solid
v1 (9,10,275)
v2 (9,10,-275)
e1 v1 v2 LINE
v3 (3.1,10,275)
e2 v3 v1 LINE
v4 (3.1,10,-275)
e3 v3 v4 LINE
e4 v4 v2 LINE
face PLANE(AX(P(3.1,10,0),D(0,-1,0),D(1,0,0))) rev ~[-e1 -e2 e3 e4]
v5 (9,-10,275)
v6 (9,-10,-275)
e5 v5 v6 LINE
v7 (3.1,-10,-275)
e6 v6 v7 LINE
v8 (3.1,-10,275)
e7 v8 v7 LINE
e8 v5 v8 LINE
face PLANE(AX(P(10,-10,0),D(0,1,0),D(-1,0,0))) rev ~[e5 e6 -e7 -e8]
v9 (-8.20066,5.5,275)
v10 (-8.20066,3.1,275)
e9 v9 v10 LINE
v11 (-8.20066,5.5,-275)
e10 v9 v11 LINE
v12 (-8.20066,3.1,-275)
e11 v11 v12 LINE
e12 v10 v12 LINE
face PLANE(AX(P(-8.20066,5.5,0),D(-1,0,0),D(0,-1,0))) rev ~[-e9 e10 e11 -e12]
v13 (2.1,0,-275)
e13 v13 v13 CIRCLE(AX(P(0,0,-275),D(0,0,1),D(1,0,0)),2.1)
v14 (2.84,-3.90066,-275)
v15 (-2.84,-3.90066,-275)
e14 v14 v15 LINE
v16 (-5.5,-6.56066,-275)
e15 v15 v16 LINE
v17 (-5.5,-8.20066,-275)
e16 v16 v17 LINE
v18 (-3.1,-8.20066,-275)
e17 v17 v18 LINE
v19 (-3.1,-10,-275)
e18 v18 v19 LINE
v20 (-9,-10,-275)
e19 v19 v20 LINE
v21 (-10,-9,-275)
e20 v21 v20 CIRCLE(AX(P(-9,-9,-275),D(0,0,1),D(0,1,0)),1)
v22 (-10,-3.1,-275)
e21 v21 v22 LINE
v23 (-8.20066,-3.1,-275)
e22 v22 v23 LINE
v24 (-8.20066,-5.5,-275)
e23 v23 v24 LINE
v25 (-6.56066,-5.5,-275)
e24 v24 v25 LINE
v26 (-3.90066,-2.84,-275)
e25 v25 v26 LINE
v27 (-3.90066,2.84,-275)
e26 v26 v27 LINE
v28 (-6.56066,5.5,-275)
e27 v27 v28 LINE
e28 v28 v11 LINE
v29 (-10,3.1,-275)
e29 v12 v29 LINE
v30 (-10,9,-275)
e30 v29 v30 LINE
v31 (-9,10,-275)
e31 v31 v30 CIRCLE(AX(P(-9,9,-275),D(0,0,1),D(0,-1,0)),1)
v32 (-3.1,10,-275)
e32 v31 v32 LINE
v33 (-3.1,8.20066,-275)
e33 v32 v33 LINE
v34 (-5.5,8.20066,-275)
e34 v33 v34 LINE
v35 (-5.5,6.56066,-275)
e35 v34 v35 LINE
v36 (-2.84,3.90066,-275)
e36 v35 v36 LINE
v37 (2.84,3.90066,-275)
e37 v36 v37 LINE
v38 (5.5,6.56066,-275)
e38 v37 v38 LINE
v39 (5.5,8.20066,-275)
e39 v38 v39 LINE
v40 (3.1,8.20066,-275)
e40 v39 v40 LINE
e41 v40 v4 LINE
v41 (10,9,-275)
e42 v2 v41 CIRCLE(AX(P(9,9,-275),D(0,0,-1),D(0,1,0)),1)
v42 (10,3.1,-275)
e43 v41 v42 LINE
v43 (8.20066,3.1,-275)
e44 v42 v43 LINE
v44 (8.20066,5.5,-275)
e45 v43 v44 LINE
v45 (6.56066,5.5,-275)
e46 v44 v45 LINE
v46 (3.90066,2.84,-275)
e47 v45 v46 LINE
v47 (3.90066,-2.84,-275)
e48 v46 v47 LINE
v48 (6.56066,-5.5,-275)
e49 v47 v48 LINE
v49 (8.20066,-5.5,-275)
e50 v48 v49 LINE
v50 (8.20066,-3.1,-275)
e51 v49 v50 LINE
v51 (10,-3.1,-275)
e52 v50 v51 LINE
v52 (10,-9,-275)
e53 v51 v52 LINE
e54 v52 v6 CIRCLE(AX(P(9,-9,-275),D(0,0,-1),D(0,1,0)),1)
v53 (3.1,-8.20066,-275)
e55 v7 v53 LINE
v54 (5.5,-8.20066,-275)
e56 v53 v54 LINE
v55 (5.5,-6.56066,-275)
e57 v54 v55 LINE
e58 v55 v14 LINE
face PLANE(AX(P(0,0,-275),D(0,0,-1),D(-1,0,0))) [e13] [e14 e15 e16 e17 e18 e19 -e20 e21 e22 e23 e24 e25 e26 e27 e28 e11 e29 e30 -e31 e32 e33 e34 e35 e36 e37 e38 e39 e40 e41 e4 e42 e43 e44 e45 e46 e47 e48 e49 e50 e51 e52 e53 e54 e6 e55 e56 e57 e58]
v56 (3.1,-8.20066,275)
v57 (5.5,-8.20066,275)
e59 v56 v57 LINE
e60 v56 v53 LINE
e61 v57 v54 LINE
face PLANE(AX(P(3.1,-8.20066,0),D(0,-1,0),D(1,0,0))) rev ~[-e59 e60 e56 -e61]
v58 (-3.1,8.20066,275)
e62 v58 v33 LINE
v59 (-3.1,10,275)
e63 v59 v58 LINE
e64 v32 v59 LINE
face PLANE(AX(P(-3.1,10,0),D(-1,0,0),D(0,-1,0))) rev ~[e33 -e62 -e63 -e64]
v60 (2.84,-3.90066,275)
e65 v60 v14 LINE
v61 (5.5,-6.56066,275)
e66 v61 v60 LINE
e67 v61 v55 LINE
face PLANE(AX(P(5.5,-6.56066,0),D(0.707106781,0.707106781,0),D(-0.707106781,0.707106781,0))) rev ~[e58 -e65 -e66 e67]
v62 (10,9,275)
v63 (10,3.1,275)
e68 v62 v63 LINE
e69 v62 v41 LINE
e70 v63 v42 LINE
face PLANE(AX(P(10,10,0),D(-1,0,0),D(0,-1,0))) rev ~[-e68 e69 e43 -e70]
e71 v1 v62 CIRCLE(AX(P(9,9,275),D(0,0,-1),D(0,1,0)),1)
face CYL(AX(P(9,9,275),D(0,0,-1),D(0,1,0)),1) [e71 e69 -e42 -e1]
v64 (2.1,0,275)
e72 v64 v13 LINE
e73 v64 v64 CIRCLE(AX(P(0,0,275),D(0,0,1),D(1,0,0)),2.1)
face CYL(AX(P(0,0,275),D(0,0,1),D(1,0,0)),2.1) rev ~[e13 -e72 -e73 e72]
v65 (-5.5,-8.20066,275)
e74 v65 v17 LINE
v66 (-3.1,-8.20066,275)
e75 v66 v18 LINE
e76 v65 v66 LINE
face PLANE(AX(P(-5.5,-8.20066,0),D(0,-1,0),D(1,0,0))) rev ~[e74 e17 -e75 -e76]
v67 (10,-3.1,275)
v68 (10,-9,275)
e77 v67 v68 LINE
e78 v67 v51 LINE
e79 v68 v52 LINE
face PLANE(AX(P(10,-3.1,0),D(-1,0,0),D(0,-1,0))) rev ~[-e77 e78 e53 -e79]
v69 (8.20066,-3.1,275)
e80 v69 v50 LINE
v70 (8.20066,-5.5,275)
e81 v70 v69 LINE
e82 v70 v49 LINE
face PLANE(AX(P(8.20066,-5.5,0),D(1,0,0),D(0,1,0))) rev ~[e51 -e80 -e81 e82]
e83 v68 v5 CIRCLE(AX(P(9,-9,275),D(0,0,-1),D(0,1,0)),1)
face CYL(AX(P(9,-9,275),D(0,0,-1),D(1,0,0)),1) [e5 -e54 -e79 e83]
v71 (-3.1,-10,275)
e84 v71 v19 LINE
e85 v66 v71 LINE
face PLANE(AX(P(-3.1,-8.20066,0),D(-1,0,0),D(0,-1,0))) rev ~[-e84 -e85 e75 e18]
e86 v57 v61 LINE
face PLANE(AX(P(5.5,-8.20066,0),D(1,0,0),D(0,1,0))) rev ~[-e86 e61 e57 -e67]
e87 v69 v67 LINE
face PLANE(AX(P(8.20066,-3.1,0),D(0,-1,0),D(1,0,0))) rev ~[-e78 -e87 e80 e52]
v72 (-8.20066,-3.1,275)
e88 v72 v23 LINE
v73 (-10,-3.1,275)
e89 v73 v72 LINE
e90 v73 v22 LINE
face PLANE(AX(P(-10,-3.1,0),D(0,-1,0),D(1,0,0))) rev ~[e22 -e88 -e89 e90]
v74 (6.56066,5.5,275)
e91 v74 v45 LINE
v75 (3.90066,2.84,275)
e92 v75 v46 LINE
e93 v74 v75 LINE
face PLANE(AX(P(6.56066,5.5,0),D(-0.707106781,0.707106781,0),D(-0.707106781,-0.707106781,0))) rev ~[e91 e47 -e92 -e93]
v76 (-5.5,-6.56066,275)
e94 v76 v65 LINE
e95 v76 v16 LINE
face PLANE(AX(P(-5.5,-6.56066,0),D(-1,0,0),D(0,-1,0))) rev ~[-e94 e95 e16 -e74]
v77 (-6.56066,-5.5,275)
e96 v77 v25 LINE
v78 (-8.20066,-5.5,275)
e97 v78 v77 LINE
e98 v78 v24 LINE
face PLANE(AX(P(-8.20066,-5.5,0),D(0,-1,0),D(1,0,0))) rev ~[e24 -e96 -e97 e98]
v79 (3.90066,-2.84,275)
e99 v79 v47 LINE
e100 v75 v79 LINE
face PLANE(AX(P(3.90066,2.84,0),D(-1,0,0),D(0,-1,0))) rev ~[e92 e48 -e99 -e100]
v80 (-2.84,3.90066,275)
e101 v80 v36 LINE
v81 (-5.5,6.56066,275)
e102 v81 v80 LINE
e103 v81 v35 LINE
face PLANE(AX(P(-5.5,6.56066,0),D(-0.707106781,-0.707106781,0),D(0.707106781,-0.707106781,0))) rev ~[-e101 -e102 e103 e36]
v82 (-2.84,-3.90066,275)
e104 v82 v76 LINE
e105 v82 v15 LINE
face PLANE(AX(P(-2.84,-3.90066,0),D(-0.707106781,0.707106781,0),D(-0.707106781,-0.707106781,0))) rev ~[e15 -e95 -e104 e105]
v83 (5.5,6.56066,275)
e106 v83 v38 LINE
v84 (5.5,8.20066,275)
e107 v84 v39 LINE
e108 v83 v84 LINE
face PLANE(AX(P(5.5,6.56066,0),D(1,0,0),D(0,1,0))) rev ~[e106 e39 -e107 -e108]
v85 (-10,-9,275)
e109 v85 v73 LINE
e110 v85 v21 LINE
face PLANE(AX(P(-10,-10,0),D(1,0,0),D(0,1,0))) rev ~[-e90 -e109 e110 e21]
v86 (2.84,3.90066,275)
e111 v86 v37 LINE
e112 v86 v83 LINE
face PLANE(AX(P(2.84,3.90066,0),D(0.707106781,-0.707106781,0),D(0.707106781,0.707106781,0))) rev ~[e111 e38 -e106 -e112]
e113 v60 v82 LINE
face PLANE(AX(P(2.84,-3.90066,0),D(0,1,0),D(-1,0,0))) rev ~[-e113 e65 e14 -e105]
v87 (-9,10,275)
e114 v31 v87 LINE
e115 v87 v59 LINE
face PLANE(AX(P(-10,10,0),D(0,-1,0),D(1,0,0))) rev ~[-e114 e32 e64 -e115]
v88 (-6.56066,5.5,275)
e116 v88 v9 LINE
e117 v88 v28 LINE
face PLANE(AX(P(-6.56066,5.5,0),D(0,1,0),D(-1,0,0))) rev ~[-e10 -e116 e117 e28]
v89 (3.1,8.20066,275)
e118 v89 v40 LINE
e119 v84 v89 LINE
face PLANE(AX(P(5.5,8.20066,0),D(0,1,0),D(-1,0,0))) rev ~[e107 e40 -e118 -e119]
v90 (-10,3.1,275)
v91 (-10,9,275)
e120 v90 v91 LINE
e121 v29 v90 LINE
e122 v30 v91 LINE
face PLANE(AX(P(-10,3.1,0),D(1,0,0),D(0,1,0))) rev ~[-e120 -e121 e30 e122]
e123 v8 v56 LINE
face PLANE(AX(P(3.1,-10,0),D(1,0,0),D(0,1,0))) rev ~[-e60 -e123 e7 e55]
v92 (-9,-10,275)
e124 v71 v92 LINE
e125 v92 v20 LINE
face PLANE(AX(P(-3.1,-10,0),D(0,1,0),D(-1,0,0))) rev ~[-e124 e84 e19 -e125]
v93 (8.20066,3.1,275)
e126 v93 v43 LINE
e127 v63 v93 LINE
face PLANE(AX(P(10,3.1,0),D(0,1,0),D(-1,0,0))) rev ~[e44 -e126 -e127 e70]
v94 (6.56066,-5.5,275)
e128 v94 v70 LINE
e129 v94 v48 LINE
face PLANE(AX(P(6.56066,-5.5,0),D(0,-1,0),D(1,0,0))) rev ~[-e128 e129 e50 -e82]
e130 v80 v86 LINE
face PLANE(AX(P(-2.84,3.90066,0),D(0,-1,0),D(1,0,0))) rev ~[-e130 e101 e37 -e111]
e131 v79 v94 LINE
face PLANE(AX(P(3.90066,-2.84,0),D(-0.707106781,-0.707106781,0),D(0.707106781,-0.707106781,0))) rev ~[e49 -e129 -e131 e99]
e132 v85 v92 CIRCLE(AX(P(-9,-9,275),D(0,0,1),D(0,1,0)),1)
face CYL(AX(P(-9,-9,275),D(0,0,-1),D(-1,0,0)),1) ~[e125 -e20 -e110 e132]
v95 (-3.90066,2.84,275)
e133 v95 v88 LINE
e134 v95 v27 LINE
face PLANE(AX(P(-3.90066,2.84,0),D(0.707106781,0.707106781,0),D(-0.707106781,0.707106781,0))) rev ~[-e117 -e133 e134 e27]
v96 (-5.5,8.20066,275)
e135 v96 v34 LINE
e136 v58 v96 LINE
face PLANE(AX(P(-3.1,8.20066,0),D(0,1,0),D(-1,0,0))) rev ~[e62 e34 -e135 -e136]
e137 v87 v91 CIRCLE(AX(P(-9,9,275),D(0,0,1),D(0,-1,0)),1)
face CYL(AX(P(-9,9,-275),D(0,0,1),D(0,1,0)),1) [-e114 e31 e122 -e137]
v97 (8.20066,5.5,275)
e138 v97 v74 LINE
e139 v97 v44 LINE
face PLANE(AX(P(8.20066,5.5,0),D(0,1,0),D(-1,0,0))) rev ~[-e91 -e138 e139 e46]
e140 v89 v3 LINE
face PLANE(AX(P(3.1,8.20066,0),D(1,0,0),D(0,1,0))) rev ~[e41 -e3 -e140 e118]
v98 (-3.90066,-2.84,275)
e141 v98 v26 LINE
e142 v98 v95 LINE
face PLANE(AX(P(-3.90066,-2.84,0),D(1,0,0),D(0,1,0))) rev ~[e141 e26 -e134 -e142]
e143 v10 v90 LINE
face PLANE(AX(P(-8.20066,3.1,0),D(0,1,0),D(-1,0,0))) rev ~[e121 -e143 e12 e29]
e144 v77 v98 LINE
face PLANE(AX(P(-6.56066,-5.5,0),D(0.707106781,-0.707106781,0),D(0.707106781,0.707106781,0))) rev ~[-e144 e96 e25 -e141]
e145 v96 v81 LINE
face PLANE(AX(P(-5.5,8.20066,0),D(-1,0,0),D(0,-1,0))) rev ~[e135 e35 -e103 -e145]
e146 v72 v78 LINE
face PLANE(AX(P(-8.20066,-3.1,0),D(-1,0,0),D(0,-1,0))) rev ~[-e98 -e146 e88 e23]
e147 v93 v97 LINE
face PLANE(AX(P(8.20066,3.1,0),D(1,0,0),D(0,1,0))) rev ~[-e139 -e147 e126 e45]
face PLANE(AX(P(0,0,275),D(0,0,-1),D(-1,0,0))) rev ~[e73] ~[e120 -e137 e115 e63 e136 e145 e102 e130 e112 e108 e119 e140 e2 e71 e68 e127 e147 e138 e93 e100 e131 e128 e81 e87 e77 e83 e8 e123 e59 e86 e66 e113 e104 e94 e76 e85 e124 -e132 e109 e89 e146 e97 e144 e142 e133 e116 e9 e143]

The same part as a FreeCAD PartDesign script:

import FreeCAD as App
import Part
import Sketcher
from FreeCAD import Vector
Q = App.Units.Quantity


def edges_at(feature, points):
    """Names of the edges that pass closest to the given points."""
    edges = feature.Shape.Edges
    near = lambda p: min(range(len(edges)), key=lambda i: edges[i].distToShape(Part.Vertex(*p))[0])
    return sorted({f"Edge{near(p) + 1}" for p in points})

doc = App.newDocument("Part")
body = doc.addObject("PartDesign::Body", "Body")

# Sketch on XY plane
sketch1 = doc.addObject("Sketcher::SketchObject", "Sketch")
body.addObject(sketch1)
sketch1.AttachmentSupport = (doc.XY_Plane, [""])
sketch1.MapMode = "FlatFace"
sketch1.addGeometry(Part.LineSegment(Vector(-3.1, 8.2, 0), Vector(-3.1, 10, 0)), False)
sketch1.addGeometry(Part.LineSegment(Vector(-3.1, 10, 0), Vector(-10, 10, 0)), False)
sketch1.addGeometry(Part.LineSegment(Vector(-10, 10, 0), Vector(-10, 3.1, 0)), False)
sketch1.addGeometry(Part.LineSegment(Vector(-10, 3.1, 0), Vector(-8.2, 3.1, 0)), False)
sketch1.addGeometry(Part.LineSegment(Vector(-8.2, 3.1, 0), Vector(-8.2, 5.5, 0)), False)
sketch1.addGeometry(Part.LineSegment(Vector(-8.2, 5.5, 0), Vector(-6.6, 5.5, 0)), False)
sketch1.addGeometry(Part.LineSegment(Vector(-6.6, 5.5, 0), Vector(-3.9, 2.8, 0)), False)
sketch1.addGeometry(Part.LineSegment(Vector(-3.9, 2.8, 0), Vector(-3.9, -2.8, 0)), False)
sketch1.addGeometry(Part.LineSegment(Vector(-3.9, -2.8, 0), Vector(-6.6, -5.5, 0)), False)
sketch1.addGeometry(Part.LineSegment(Vector(-6.6, -5.5, 0), Vector(-8.2, -5.5, 0)), False)
sketch1.addGeometry(Part.LineSegment(Vector(-8.2, -5.5, 0), Vector(-8.2, -3.1, 0)), False)
sketch1.addGeometry(Part.LineSegment(Vector(-8.2, -3.1, 0), Vector(-10, -3.1, 0)), False)
sketch1.addGeometry(Part.LineSegment(Vector(-10, -3.1, 0), Vector(-10, -10, 0)), False)
sketch1.addGeometry(Part.LineSegment(Vector(-10, -10, 0), Vector(-3.1, -10, 0)), False)
sketch1.addGeometry(Part.LineSegment(Vector(-3.1, -10, 0), Vector(-3.1, -8.2, 0)), False)
sketch1.addGeometry(Part.LineSegment(Vector(-3.1, -8.2, 0), Vector(-5.5, -8.2, 0)), False)
sketch1.addGeometry(Part.LineSegment(Vector(-5.5, -8.2, 0), Vector(-5.5, -6.6, 0)), False)
sketch1.addGeometry(Part.LineSegment(Vector(-5.5, -6.6, 0), Vector(-2.8, -3.9, 0)), False)
sketch1.addGeometry(Part.LineSegment(Vector(-2.8, -3.9, 0), Vector(2.8, -3.9, 0)), False)
sketch1.addGeometry(Part.LineSegment(Vector(2.8, -3.9, 0), Vector(5.5, -6.6, 0)), False)
sketch1.addGeometry(Part.LineSegment(Vector(5.5, -6.6, 0), Vector(5.5, -8.2, 0)), False)
sketch1.addGeometry(Part.LineSegment(Vector(5.5, -8.2, 0), Vector(3.1, -8.2, 0)), False)
sketch1.addGeometry(Part.LineSegment(Vector(3.1, -8.2, 0), Vector(3.1, -10, 0)), False)
sketch1.addGeometry(Part.LineSegment(Vector(3.1, -10, 0), Vector(10, -10, 0)), False)
sketch1.addGeometry(Part.LineSegment(Vector(10, -10, 0), Vector(10, -3.1, 0)), False)
sketch1.addGeometry(Part.LineSegment(Vector(10, -3.1, 0), Vector(8.2, -3.1, 0)), False)
sketch1.addGeometry(Part.LineSegment(Vector(8.2, -3.1, 0), Vector(8.2, -5.5, 0)), False)
sketch1.addGeometry(Part.LineSegment(Vector(8.2, -5.5, 0), Vector(6.6, -5.5, 0)), False)
sketch1.addGeometry(Part.LineSegment(Vector(6.6, -5.5, 0), Vector(3.9, -2.8, 0)), False)
sketch1.addGeometry(Part.LineSegment(Vector(3.9, -2.8, 0), Vector(3.9, 2.8, 0)), False)
sketch1.addGeometry(Part.LineSegment(Vector(3.9, 2.8, 0), Vector(6.6, 5.5, 0)), False)
sketch1.addGeometry(Part.LineSegment(Vector(6.6, 5.5, 0), Vector(8.2, 5.5, 0)), False)
sketch1.addGeometry(Part.LineSegment(Vector(8.2, 5.5, 0), Vector(8.2, 3.1, 0)), False)
sketch1.addGeometry(Part.LineSegment(Vector(8.2, 3.1, 0), Vector(10, 3.1, 0)), False)
sketch1.addGeometry(Part.LineSegment(Vector(10, 3.1, 0), Vector(10, 10, 0)), False)
sketch1.addGeometry(Part.LineSegment(Vector(10, 10, 0), Vector(3.1, 10, 0)), False)
sketch1.addGeometry(Part.LineSegment(Vector(3.1, 10, 0), Vector(3.1, 8.2, 0)), False)
sketch1.addGeometry(Part.LineSegment(Vector(3.1, 8.2, 0), Vector(5.5, 8.2, 0)), False)
sketch1.addGeometry(Part.LineSegment(Vector(5.5, 8.2, 0), Vector(5.5, 6.6, 0)), False)
sketch1.addGeometry(Part.LineSegment(Vector(5.5, 6.6, 0), Vector(2.8, 3.9, 0)), False)
sketch1.addGeometry(Part.LineSegment(Vector(2.8, 3.9, 0), Vector(-2.8, 3.9, 0)), False)
sketch1.addGeometry(Part.LineSegment(Vector(-2.8, 3.9, 0), Vector(-5.5, 6.6, 0)), False)
sketch1.addGeometry(Part.LineSegment(Vector(-5.5, 6.6, 0), Vector(-5.5, 8.2, 0)), False)
sketch1.addGeometry(Part.LineSegment(Vector(-5.5, 8.2, 0), Vector(-3.1, 8.2, 0)), False)
sketch1.addConstraint(Sketcher.Constraint("Coincident", 0, 2, 1, 1))
sketch1.addConstraint(Sketcher.Constraint("Coincident", 1, 2, 2, 1))
sketch1.addConstraint(Sketcher.Constraint("Coincident", 2, 2, 3, 1))
sketch1.addConstraint(Sketcher.Constraint("Coincident", 3, 2, 4, 1))
sketch1.addConstraint(Sketcher.Constraint("Coincident", 4, 2, 5, 1))
sketch1.addConstraint(Sketcher.Constraint("Coincident", 5, 2, 6, 1))
sketch1.addConstraint(Sketcher.Constraint("Coincident", 6, 2, 7, 1))
sketch1.addConstraint(Sketcher.Constraint("Coincident", 7, 2, 8, 1))
sketch1.addConstraint(Sketcher.Constraint("Coincident", 8, 2, 9, 1))
sketch1.addConstraint(Sketcher.Constraint("Coincident", 9, 2, 10, 1))
sketch1.addConstraint(Sketcher.Constraint("Coincident", 10, 2, 11, 1))
sketch1.addConstraint(Sketcher.Constraint("Coincident", 11, 2, 12, 1))
sketch1.addConstraint(Sketcher.Constraint("Coincident", 12, 2, 13, 1))
sketch1.addConstraint(Sketcher.Constraint("Coincident", 13, 2, 14, 1))
sketch1.addConstraint(Sketcher.Constraint("Coincident", 14, 2, 15, 1))
sketch1.addConstraint(Sketcher.Constraint("Coincident", 15, 2, 16, 1))
sketch1.addConstraint(Sketcher.Constraint("Coincident", 16, 2, 17, 1))
sketch1.addConstraint(Sketcher.Constraint("Coincident", 17, 2, 18, 1))
sketch1.addConstraint(Sketcher.Constraint("Coincident", 18, 2, 19, 1))
sketch1.addConstraint(Sketcher.Constraint("Coincident", 19, 2, 20, 1))
sketch1.addConstraint(Sketcher.Constraint("Coincident", 20, 2, 21, 1))
sketch1.addConstraint(Sketcher.Constraint("Coincident", 21, 2, 22, 1))
sketch1.addConstraint(Sketcher.Constraint("Coincident", 22, 2, 23, 1))
sketch1.addConstraint(Sketcher.Constraint("Coincident", 23, 2, 24, 1))
sketch1.addConstraint(Sketcher.Constraint("Coincident", 24, 2, 25, 1))
sketch1.addConstraint(Sketcher.Constraint("Coincident", 25, 2, 26, 1))
sketch1.addConstraint(Sketcher.Constraint("Coincident", 26, 2, 27, 1))
sketch1.addConstraint(Sketcher.Constraint("Coincident", 27, 2, 28, 1))
sketch1.addConstraint(Sketcher.Constraint("Coincident", 28, 2, 29, 1))
sketch1.addConstraint(Sketcher.Constraint("Coincident", 29, 2, 30, 1))
sketch1.addConstraint(Sketcher.Constraint("Coincident", 30, 2, 31, 1))
sketch1.addConstraint(Sketcher.Constraint("Coincident", 31, 2, 32, 1))
sketch1.addConstraint(Sketcher.Constraint("Coincident", 32, 2, 33, 1))
sketch1.addConstraint(Sketcher.Constraint("Coincident", 33, 2, 34, 1))
sketch1.addConstraint(Sketcher.Constraint("Coincident", 34, 2, 35, 1))
sketch1.addConstraint(Sketcher.Constraint("Coincident", 35, 2, 36, 1))
sketch1.addConstraint(Sketcher.Constraint("Coincident", 36, 2, 37, 1))
sketch1.addConstraint(Sketcher.Constraint("Coincident", 37, 2, 38, 1))
sketch1.addConstraint(Sketcher.Constraint("Coincident", 38, 2, 39, 1))
sketch1.addConstraint(Sketcher.Constraint("Coincident", 39, 2, 40, 1))
sketch1.addConstraint(Sketcher.Constraint("Coincident", 40, 2, 41, 1))
sketch1.addConstraint(Sketcher.Constraint("Coincident", 41, 2, 42, 1))
sketch1.addConstraint(Sketcher.Constraint("Coincident", 42, 2, 43, 1))
sketch1.addConstraint(Sketcher.Constraint("Coincident", 43, 2, 0, 1))
sketch1.addConstraint(Sketcher.Constraint("Vertical", 0))
sketch1.addConstraint(Sketcher.Constraint("Horizontal", 1))
sketch1.addConstraint(Sketcher.Constraint("Vertical", 2))
sketch1.addConstraint(Sketcher.Constraint("Horizontal", 3))
sketch1.addConstraint(Sketcher.Constraint("Vertical", 4))
sketch1.addConstraint(Sketcher.Constraint("Horizontal", 5))
sketch1.addConstraint(Sketcher.Constraint("Vertical", 7))
sketch1.addConstraint(Sketcher.Constraint("Horizontal", 9))
sketch1.addConstraint(Sketcher.Constraint("Vertical", 10))
sketch1.addConstraint(Sketcher.Constraint("Horizontal", 11))
sketch1.addConstraint(Sketcher.Constraint("Vertical", 12))
sketch1.addConstraint(Sketcher.Constraint("Horizontal", 13))
sketch1.addConstraint(Sketcher.Constraint("Vertical", 14))
sketch1.addConstraint(Sketcher.Constraint("Horizontal", 15))
sketch1.addConstraint(Sketcher.Constraint("Vertical", 16))
sketch1.addConstraint(Sketcher.Constraint("Horizontal", 18))
sketch1.addConstraint(Sketcher.Constraint("Vertical", 20))
sketch1.addConstraint(Sketcher.Constraint("Horizontal", 21))
sketch1.addConstraint(Sketcher.Constraint("Vertical", 22))
sketch1.addConstraint(Sketcher.Constraint("Horizontal", 23))
sketch1.addConstraint(Sketcher.Constraint("Vertical", 24))
sketch1.addConstraint(Sketcher.Constraint("Horizontal", 25))
sketch1.addConstraint(Sketcher.Constraint("Vertical", 26))
sketch1.addConstraint(Sketcher.Constraint("Horizontal", 27))
sketch1.addConstraint(Sketcher.Constraint("Vertical", 29))
sketch1.addConstraint(Sketcher.Constraint("Horizontal", 31))
sketch1.addConstraint(Sketcher.Constraint("Vertical", 32))
sketch1.addConstraint(Sketcher.Constraint("Horizontal", 33))
sketch1.addConstraint(Sketcher.Constraint("Vertical", 34))
sketch1.addConstraint(Sketcher.Constraint("Horizontal", 35))
sketch1.addConstraint(Sketcher.Constraint("Vertical", 36))
sketch1.addConstraint(Sketcher.Constraint("Horizontal", 37))
sketch1.addConstraint(Sketcher.Constraint("Vertical", 38))
sketch1.addConstraint(Sketcher.Constraint("Horizontal", 40))
sketch1.addConstraint(Sketcher.Constraint("Vertical", 42))
sketch1.addConstraint(Sketcher.Constraint("Horizontal", 43))
sketch1.addConstraint(Sketcher.Constraint("Symmetric", 0, 2, 22, 2, -1, 1))
sketch1.addConstraint(Sketcher.Constraint("Symmetric", 2, 2, 24, 2, -1, 1))
sketch1.addConstraint(Sketcher.Constraint("Symmetric", 4, 2, 26, 2, -1, 1))
sketch1.addConstraint(Sketcher.Constraint("Symmetric", 6, 2, 28, 2, -1, 1))
sketch1.addConstraint(Sketcher.Constraint("Symmetric", 8, 2, 30, 2, -1, 1))
sketch1.addConstraint(Sketcher.Constraint("Symmetric", 10, 2, 32, 2, -1, 1))
sketch1.addConstraint(Sketcher.Constraint("Symmetric", 12, 2, 34, 2, -1, 1))
sketch1.addConstraint(Sketcher.Constraint("Symmetric", 14, 2, 36, 2, -1, 1))
sketch1.addConstraint(Sketcher.Constraint("Symmetric", 16, 2, 38, 2, -1, 1))
sketch1.addConstraint(Sketcher.Constraint("Symmetric", 17, 2, 39, 2, -1, 1))
sketch1.addConstraint(Sketcher.Constraint("Symmetric", 19, 2, 41, 2, -1, 1))
sketch1.addConstraint(Sketcher.Constraint("Symmetric", 16, 2, 19, 2, -2))
sketch1.addConstraint(Sketcher.Constraint("Symmetric", 14, 2, 21, 2, -2))
sketch1.addConstraint(Sketcher.Constraint("Symmetric", 12, 2, 23, 2, -2))
sketch1.addConstraint(Sketcher.Constraint("Symmetric", 10, 2, 25, 2, -2))
sketch1.addConstraint(Sketcher.Constraint("Symmetric", 8, 2, 27, 2, -2))
sketch1.addConstraint(Sketcher.Constraint("Perpendicular", 6, 8))
sketch1.addConstraint(Sketcher.Constraint("Parallel", 8, 17))
sketch1.addConstraint(Sketcher.Constraint("Perpendicular", 17, 19))
sketch1.addConstraint(Sketcher.Constraint("Parallel", 19, 28))
sketch1.addConstraint(Sketcher.Constraint("Perpendicular", 28, 30))
sketch1.addConstraint(Sketcher.Constraint("Perpendicular", 39, 41))
sketch1.addConstraint(Sketcher.Constraint("Horizontal", 7, 2, 28, 2))
sketch1.addConstraint(Sketcher.Constraint("Horizontal", 37, 2, 42, 2))
sketch1.addConstraint(Sketcher.Constraint("Equal", 33, 0))
sketch1.addConstraint(Sketcher.Constraint("Equal", 35, 2))
sketch1.addConstraint(Sketcher.Constraint("Equal", 43, 4))
sketch1.addConstraint(Sketcher.Constraint("Equal", 40, 7))
sketch1.addConstraint(Sketcher.Constraint("Equal", 31, 16))
sketch1.addConstraint(Sketcher.Constraint("Equal", 8, 17))
sketch1.addConstraint(Sketcher.Constraint("DistanceX", 1, 2, 1, 1, Q("6.9 mm")))
sketch1.addConstraint(Sketcher.Constraint("DistanceX", 15, 2, 15, 1, Q("2.4 mm")))
sketch1.addConstraint(Sketcher.Constraint("DistanceY", -1, 1, 0, 2, Q("10 mm")))
sketch1.addConstraint(Sketcher.Constraint("DistanceX", 5, 1, 5, 2, Q("1.64 mm")))
sketch1.addConstraint(Sketcher.Constraint("DistanceX", 18, 1, 18, 2, Q("5.68 mm")))
sketch1.addConstraint(Sketcher.Constraint("DistanceX", 3, 1, 3, 2, Q("1.79934 mm")))
pad1 = doc.addObject("PartDesign::Pad", "Pad")
body.addObject(pad1)
pad1.Profile = sketch1
pad1.Length = 550
pad1.Midplane = True

# Sketch on XY plane
sketch2 = doc.addObject("Sketcher::SketchObject", "Sketch001")
body.addObject(sketch2)
sketch2.AttachmentSupport = (doc.XY_Plane, [""])
sketch2.MapMode = "FlatFace"
sketch2.AttachmentOffset = App.Placement(Vector(0, 0, 275), App.Rotation())
sketch2.addGeometry(Part.Circle(Vector(0, 0, 0), Vector(0, 0, 1), 2.1), False)
sketch2.addConstraint(Sketcher.Constraint("Coincident", 0, 3, -1, 1))
sketch2.addConstraint(Sketcher.Constraint("Diameter", 0, Q("4.2 mm")))
pocket1 = doc.addObject("PartDesign::Pocket", "Pocket")
body.addObject(pocket1)
pocket1.Profile = sketch2
pocket1.Type = "ThroughAll"
doc.recompute()

fillet = doc.addObject("PartDesign::Fillet", "Fillet")
body.addObject(fillet)
fillet.Base = (pocket1, edges_at(pocket1, [
    (-10, -10, 0),
    (-10, 10, 0),
    (10, 10, 0),
    (10, -10, 0),
]))
fillet.Radius = 1

doc.recompute()
